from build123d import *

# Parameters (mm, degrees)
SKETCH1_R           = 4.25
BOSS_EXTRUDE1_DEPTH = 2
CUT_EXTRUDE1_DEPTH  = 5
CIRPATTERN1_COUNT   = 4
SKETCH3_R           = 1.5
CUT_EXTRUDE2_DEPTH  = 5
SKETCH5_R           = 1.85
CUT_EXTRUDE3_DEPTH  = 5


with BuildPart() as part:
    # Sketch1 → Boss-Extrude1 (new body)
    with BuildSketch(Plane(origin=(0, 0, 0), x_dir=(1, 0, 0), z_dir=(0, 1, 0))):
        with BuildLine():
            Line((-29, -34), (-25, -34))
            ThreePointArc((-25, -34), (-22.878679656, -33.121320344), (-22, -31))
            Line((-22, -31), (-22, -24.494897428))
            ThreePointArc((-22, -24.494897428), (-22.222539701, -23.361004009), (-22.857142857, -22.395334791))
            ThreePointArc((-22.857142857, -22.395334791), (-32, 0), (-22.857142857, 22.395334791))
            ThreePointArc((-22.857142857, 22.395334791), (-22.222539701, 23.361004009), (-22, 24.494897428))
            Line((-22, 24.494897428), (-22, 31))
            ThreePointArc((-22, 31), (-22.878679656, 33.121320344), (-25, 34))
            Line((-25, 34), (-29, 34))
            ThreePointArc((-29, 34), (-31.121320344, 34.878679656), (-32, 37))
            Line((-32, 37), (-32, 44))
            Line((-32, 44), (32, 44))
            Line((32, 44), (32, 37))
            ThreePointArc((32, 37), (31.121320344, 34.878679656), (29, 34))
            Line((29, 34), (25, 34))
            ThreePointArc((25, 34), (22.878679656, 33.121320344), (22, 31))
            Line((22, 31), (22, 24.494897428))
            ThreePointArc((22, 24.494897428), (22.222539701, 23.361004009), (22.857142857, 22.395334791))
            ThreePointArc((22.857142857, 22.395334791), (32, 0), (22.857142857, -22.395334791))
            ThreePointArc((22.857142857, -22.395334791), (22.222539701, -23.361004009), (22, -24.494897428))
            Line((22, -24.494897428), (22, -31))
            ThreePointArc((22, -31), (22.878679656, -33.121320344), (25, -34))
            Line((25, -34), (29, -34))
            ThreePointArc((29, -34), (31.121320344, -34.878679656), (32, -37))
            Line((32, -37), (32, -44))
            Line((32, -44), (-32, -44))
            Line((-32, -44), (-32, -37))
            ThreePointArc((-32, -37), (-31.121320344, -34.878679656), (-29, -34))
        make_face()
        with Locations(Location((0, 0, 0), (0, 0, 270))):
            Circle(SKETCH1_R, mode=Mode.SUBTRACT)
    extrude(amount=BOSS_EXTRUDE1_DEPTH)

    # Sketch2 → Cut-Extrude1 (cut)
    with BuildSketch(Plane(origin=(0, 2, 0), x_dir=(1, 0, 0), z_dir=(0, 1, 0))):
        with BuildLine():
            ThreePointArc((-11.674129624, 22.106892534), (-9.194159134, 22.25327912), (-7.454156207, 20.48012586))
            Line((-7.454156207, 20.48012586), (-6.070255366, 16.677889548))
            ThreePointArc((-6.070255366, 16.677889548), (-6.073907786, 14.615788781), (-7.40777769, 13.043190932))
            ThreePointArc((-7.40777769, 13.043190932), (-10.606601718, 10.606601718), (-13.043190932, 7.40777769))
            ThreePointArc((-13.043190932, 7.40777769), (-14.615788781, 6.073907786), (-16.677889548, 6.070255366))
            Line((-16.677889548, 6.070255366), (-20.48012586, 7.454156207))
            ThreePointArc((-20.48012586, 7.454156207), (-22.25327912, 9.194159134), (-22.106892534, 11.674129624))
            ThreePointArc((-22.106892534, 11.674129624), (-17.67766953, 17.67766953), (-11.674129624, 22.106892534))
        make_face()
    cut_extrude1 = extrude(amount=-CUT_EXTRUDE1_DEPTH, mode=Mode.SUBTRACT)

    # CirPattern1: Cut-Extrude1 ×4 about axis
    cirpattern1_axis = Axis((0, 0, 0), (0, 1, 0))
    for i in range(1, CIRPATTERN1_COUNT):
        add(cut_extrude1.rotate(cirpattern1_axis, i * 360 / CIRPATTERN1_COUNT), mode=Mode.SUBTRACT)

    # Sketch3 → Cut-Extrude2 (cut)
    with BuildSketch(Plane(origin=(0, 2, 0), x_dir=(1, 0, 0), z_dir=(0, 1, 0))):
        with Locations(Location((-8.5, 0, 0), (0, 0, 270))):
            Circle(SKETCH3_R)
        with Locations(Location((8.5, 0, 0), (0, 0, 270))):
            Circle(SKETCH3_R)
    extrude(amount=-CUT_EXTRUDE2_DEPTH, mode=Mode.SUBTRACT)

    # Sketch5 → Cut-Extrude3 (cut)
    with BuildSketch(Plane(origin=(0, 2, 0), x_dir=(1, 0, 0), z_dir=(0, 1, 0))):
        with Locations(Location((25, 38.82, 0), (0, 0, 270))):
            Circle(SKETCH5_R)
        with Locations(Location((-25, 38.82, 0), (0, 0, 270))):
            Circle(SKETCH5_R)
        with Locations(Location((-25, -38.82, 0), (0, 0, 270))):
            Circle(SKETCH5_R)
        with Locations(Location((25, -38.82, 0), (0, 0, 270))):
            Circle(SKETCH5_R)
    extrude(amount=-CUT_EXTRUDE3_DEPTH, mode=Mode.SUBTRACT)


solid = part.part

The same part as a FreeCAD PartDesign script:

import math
import FreeCAD as App
import Part
import Sketcher
from FreeCAD import Vector
Q = App.Units.Quantity

doc = App.newDocument("Part")
body = doc.addObject("PartDesign::Body", "Body")

sketch1 = doc.addObject("Sketcher::SketchObject", "Sketch")
body.addObject(sketch1)
sketch1.AttachmentSupport = (doc.XZ_Plane, [""])
sketch1.MapMode = "FlatFace"
sketch1.addGeometry([
    Part.LineSegment(Vector(-25, 34, 0), Vector(-29, 34, 0)),
    Part.ArcOfCircle(Part.Circle(Vector(-29, 37, 0), Vector(0, 0, 1), 3), math.radians(180), math.radians(270)),
    Part.LineSegment(Vector(-32, 37, 0), Vector(-32, 44, 0)),
    Part.LineSegment(Vector(-32, 44, 0), Vector(32, 44, 0)),
    Part.LineSegment(Vector(32, 44, 0), Vector(32, 37, 0)),
    Part.ArcOfCircle(Part.Circle(Vector(29, 37, 0), Vector(0, 0, 1), 3), math.radians(-90), math.radians(0)),
    Part.LineSegment(Vector(29, 34, 0), Vector(25, 34, 0)),
    Part.ArcOfCircle(Part.Circle(Vector(25, 31, 0), Vector(0, 0, 1), 3), math.radians(90), math.radians(180)),
    Part.LineSegment(Vector(22, 31, 0), Vector(22, 24.494897, 0)),
    Part.ArcOfCircle(Part.Circle(Vector(25, 24.494897, 0), Vector(0, 0, 1), 3), math.radians(-180), math.radians(-135.584691)),
    Part.ArcOfCircle(Part.Circle(Vector(0, 0, 0), Vector(0, 0, 1), 32), math.radians(-44.415309), math.radians(44.415309)),
    Part.ArcOfCircle(Part.Circle(Vector(25, -24.494897, 0), Vector(0, 0, 1), 3), math.radians(135.584691), math.radians(180)),
    Part.LineSegment(Vector(22, -24.494897, 0), Vector(22, -31, 0)),
    Part.ArcOfCircle(Part.Circle(Vector(25, -31, 0), Vector(0, 0, 1), 3), math.radians(180), math.radians(270)),
    Part.LineSegment(Vector(25, -34, 0), Vector(29, -34, 0)),
    Part.ArcOfCircle(Part.Circle(Vector(29, -37, 0), Vector(0, 0, 1), 3), math.radians(0), math.radians(90)),
    Part.LineSegment(Vector(32, -37, 0), Vector(32, -44, 0)),
    Part.LineSegment(Vector(32, -44, 0), Vector(-32, -44, 0)),
    Part.LineSegment(Vector(-32, -44, 0), Vector(-32, -37, 0)),
    Part.ArcOfCircle(Part.Circle(Vector(-29, -37, 0), Vector(0, 0, 1), 3), math.radians(90), math.radians(180)),
    Part.LineSegment(Vector(-29, -34, 0), Vector(-25, -34, 0)),
    Part.ArcOfCircle(Part.Circle(Vector(-25, -31, 0), Vector(0, 0, 1), 3), math.radians(-90), math.radians(0)),
    Part.LineSegment(Vector(-22, -31, 0), Vector(-22, -24.494897, 0)),
    Part.ArcOfCircle(Part.Circle(Vector(-25, -24.494897, 0), Vector(0, 0, 1), 3), math.radians(0), math.radians(44.415309)),
    Part.ArcOfCircle(Part.Circle(Vector(0, 0, 0), Vector(0, 0, 1), 32), math.radians(135.584691), math.radians(224.415309)),
    Part.ArcOfCircle(Part.Circle(Vector(-25, 24.494897, 0), Vector(0, 0, 1), 3), math.radians(-44.415309), math.radians(0)),
    Part.LineSegment(Vector(-22, 24.494897, 0), Vector(-22, 31, 0)),
    Part.ArcOfCircle(Part.Circle(Vector(-25, 31, 0), Vector(0, 0, 1), 3), math.radians(0), math.radians(90)),
    Part.Circle(Vector(0, 0, 0), Vector(0, 0, 1), 4.25),
], False)
sketch1.addConstraint([
    Sketcher.Constraint("Tangent", 0, 2, 1, 2),
    Sketcher.Constraint("Tangent", 1, 1, 2, 1),
    Sketcher.Constraint("Coincident", 2, 2, 3, 1),
    Sketcher.Constraint("Coincident", 3, 2, 4, 1),
    Sketcher.Constraint("Tangent", 4, 2, 5, 2),
    Sketcher.Constraint("Tangent", 5, 1, 6, 1),
    Sketcher.Constraint("Tangent", 6, 2, 7, 1),
    Sketcher.Constraint("Tangent", 7, 2, 8, 1),
    Sketcher.Constraint("Tangent", 8, 2, 9, 1),
    Sketcher.Constraint("Tangent", 9, 2, 10, 2),
    Sketcher.Constraint("Tangent", 10, 1, 11, 1),
    Sketcher.Constraint("Tangent", 11, 2, 12, 1),
    Sketcher.Constraint("Tangent", 12, 2, 13, 1),
    Sketcher.Constraint("Tangent", 13, 2, 14, 1),
    Sketcher.Constraint("Tangent", 14, 2, 15, 2),
    Sketcher.Constraint("Tangent", 15, 1, 16, 1),
    Sketcher.Constraint("Coincident", 16, 2, 17, 1),
    Sketcher.Constraint("Coincident", 17, 2, 18, 1),
    Sketcher.Constraint("Tangent", 18, 2, 19, 2),
    Sketcher.Constraint("Tangent", 19, 1, 20, 1),
    Sketcher.Constraint("Tangent", 20, 2, 21, 1),
    Sketcher.Constraint("Tangent", 21, 2, 22, 1),
    Sketcher.Constraint("Tangent", 22, 2, 23, 1),
    Sketcher.Constraint("Tangent", 23, 2, 24, 2),
    Sketcher.Constraint("Tangent", 24, 1, 25, 1),
    Sketcher.Constraint("Tangent", 25, 2, 26, 1),
    Sketcher.Constraint("Tangent", 26, 2, 27, 1),
    Sketcher.Constraint("Tangent", 27, 2, 0, 1),
    Sketcher.Constraint("Horizontal", 0),
    Sketcher.Constraint("Vertical", 2),
    Sketcher.Constraint("Horizontal", 3),
    Sketcher.Constraint("Vertical", 4),
    Sketcher.Constraint("Horizontal", 6),
    Sketcher.Constraint("Vertical", 8),
    Sketcher.Constraint("Vertical", 12),
    Sketcher.Constraint("Horizontal", 14),
    Sketcher.Constraint("Vertical", 16),
    Sketcher.Constraint("Horizontal", 17),
    Sketcher.Constraint("Vertical", 18),
    Sketcher.Constraint("Horizontal", 20),
    Sketcher.Constraint("Vertical", 22),
    Sketcher.Constraint("Vertical", 26),
    Sketcher.Constraint("Coincident", 10, 3, -1, 1),
    Sketcher.Constraint("Coincident", 24, 3, -1, 1),
    Sketcher.Constraint("Coincident", 28, 3, -1, 1),
    Sketcher.Constraint("Equal", 1, 5),
    Sketcher.Constraint("Equal", 5, 7),
    Sketcher.Constraint("Equal", 7, 9),
    Sketcher.Constraint("Equal", 9, 11),
    Sketcher.Constraint("Equal", 11, 13),
    Sketcher.Constraint("Equal", 13, 15),
    Sketcher.Constraint("Equal", 15, 19),
    Sketcher.Constraint("Equal", 19, 21),
    Sketcher.Constraint("Equal", 21, 23),
    Sketcher.Constraint("Equal", 10, 24),
    Sketcher.Constraint("Equal", 23, 25),
    Sketcher.Constraint("Equal", 25, 27),
    Sketcher.Constraint("Symmetric", 1, 3, 15, 3, -1, 1),
    Sketcher.Constraint("Symmetric", 5, 3, 19, 3, -1, 1),
    Sketcher.Constraint("Symmetric", 1, 3, 5, 3, -2),
    Sketcher.Constraint("Horizontal", 11, 3, 23, 3),
    Sketcher.Constraint("Horizontal", 9, 3, 25, 3),
    Sketcher.Constraint("Vertical", 9, 3, 11, 3),
    Sketcher.Constraint("Equal", 4, 16),
    Sketcher.Constraint("Radius", 1, Q("3 mm")),
    Sketcher.Constraint("Radius", 10, Q("32 mm")),
    Sketcher.Constraint("Diameter", 28, Q("8.5 mm")),
    Sketcher.Constraint("DistanceX", 0, 2, 0, 1, Q("4 mm")),
    Sketcher.Constraint("DistanceX", 3, 1, 3, 2, Q("64 mm")),
    Sketcher.Constraint("DistanceY", 2, 1, 2, 2, Q("7 mm")),
    Sketcher.Constraint("DistanceY", -1, 1, 1, 3, Q("37 mm")),
])
pad1 = doc.addObject("PartDesign::Pad", "Pad")
body.addObject(pad1)
pad1.Profile = sketch1
pad1.Length = 2
pad1.Reversed = True

sketch2 = doc.addObject("Sketcher::SketchObject", "Sketch001")
body.addObject(sketch2)
sketch2.AttachmentSupport = (doc.XZ_Plane, [""])
sketch2.MapMode = "FlatFace"
sketch2.AttachmentOffset = App.Placement(Vector(0, 0, -2), App.Rotation())
sketch2.addGeometry([
    Part.ArcOfCircle(Part.Circle(Vector(-10.273234, -19.454065, 0), Vector(0, 0, 1), 3), math.radians(-117.83748), math.radians(-20)),
    Part.ArcOfCircle(Part.Circle(Vector(0, 0, 0), Vector(0, 0, 1), 25), math.radians(-152.16252), math.radians(-117.83748)),
    Part.ArcOfCircle(Part.Circle(Vector(-19.454065, -10.273234, 0), Vector(0, 0, 1), 3), math.radians(110), math.radians(207.83748)),
    Part.LineSegment(Vector(-20.480126, -7.454156, 0), Vector(-16.67789, -6.070255, 0)),
    Part.ArcOfCircle(Part.Circle(Vector(-15.651829, -8.889333, 0), Vector(0, 0, 1), 3), math.radians(29.594068), math.radians(110)),
    Part.ArcOfCircle(Part.Circle(Vector(0, 0, 0), Vector(0, 0, 1), 15), math.radians(-150.405932), math.radians(-119.594068)),
    Part.ArcOfCircle(Part.Circle(Vector(-8.889333, -15.651829, 0), Vector(0, 0, 1), 3), math.radians(-20), math.radians(60.405932)),
    Part.LineSegment(Vector(-6.070255, -16.67789, 0), Vector(-7.454156, -20.480126, 0)),
], False)
sketch2.addConstraint([
    Sketcher.Constraint("Tangent", 0, 1, 1, 2),
    Sketcher.Constraint("Tangent", 1, 1, 2, 2),
    Sketcher.Constraint("Tangent", 2, 1, 3, 1),
    Sketcher.Constraint("Tangent", 3, 2, 4, 2),
    Sketcher.Constraint("Tangent", 4, 1, 5, 1),
    Sketcher.Constraint("Tangent", 5, 2, 6, 2),
    Sketcher.Constraint("Tangent", 6, 1, 7, 1),
    Sketcher.Constraint("Tangent", 7, 2, 0, 2),
    Sketcher.Constraint("Coincident", 1, 3, -1, 1),
    Sketcher.Constraint("Coincident", 5, 3, -1, 1),
    Sketcher.Constraint("Equal", 0, 2),
    Sketcher.Constraint("Equal", 2, 4),
    Sketcher.Constraint("Equal", 4, 6),
    Sketcher.Constraint("Equal", 3, 7),
    Sketcher.Constraint("Radius", 0, Q("3 mm")),
    Sketcher.Constraint("Radius", 1, Q("25 mm")),
    Sketcher.Constraint("Radius", 5, Q("15 mm")),
    Sketcher.Constraint("Angle", 3, Q("20 deg")),
    Sketcher.Constraint("Angle", 7, Q("-110 deg")),
    Sketcher.Constraint("DistanceY", 2, 3, 4, 3, Q("1.383901 mm")),
])
pocket1 = doc.addObject("PartDesign::Pocket", "Pocket")
body.addObject(pocket1)
pocket1.Profile = sketch2
pocket1.Length = 5
pocket1.Reversed = True
doc.recompute()

polarpattern = doc.addObject("PartDesign::PolarPattern", "PolarPattern")
body.addObject(polarpattern)
polarpattern.Originals = [pocket1]
polarpattern.Axis = (doc.Y_Axis, [""])
polarpattern.Angle = 360
polarpattern.Occurrences = 4
body.Tip = polarpattern

sketch3 = doc.addObject("Sketcher::SketchObject", "Sketch002")
body.addObject(sketch3)
sketch3.AttachmentSupport = (doc.XZ_Plane, [""])
sketch3.MapMode = "FlatFace"
sketch3.AttachmentOffset = App.Placement(Vector(0, 0, -2), App.Rotation())
sketch3.addGeometry([
    Part.Circle(Vector(-8.5, 0, 0), Vector(0, 0, 1), 1.5),
    Part.Circle(Vector(8.5, 0, 0), Vector(0, 0, 1), 1.5),
], False)
sketch3.addConstraint([
    Sketcher.Constraint("Equal", 0, 1),
    Sketcher.Constraint("Symmetric", 0, 3, 1, 3, -1, 1),
    Sketcher.Constraint("PointOnObject", 0, 3, -1),
    Sketcher.Constraint("Diameter", 0, Q("3 mm")),
    Sketcher.Constraint("DistanceX", 0, 3, 1, 3, Q("17 mm")),
])
pocket2 = doc.addObject("PartDesign::Pocket", "Pocket001")
body.addObject(pocket2)
pocket2.Profile = sketch3
pocket2.Length = 5
pocket2.Reversed = True

sketch4 = doc.addObject("Sketcher::SketchObject", "Sketch003")
body.addObject(sketch4)
sketch4.AttachmentSupport = (doc.XZ_Plane, [""])
sketch4.MapMode = "FlatFace"
sketch4.AttachmentOffset = App.Placement(Vector(0, 0, -2), App.Rotation())
sketch4.addGeometry([
    Part.Circle(Vector(25, -38.82, 0), Vector(0, 0, 1), 1.85),
    Part.Circle(Vector(-25, -38.82, 0), Vector(0, 0, 1), 1.85),
    Part.Circle(Vector(-25, 38.82, 0), Vector(0, 0, 1), 1.85),
    Part.Circle(Vector(25, 38.82, 0), Vector(0, 0, 1), 1.85),
], False)
sketch4.addConstraint([
    Sketcher.Constraint("Equal", 0, 1),
    Sketcher.Constraint("Equal", 1, 2),
    Sketcher.Constraint("Equal", 2, 3),
    Sketcher.Constraint("Symmetric", 0, 3, 2, 3, -1, 1),
    Sketcher.Constraint("Symmetric", 1, 3, 3, 3, -1, 1),
    Sketcher.Constraint("Symmetric", 0, 3, 1, 3, -2),
    Sketcher.Constraint("Diameter", 0, Q("3.7 mm")),
    Sketcher.Constraint("DistanceX", -1, 1, 0, 3, Q("25 mm")),
    Sketcher.Constraint("DistanceY", 0, 3, -1, 1, Q("38.82 mm")),
])
pocket3 = doc.addObject("PartDesign::Pocket", "Pocket002")
body.addObject(pocket3)
pocket3.Profile = sketch4
pocket3.Length = 5
pocket3.Reversed = True

doc.recompute()
